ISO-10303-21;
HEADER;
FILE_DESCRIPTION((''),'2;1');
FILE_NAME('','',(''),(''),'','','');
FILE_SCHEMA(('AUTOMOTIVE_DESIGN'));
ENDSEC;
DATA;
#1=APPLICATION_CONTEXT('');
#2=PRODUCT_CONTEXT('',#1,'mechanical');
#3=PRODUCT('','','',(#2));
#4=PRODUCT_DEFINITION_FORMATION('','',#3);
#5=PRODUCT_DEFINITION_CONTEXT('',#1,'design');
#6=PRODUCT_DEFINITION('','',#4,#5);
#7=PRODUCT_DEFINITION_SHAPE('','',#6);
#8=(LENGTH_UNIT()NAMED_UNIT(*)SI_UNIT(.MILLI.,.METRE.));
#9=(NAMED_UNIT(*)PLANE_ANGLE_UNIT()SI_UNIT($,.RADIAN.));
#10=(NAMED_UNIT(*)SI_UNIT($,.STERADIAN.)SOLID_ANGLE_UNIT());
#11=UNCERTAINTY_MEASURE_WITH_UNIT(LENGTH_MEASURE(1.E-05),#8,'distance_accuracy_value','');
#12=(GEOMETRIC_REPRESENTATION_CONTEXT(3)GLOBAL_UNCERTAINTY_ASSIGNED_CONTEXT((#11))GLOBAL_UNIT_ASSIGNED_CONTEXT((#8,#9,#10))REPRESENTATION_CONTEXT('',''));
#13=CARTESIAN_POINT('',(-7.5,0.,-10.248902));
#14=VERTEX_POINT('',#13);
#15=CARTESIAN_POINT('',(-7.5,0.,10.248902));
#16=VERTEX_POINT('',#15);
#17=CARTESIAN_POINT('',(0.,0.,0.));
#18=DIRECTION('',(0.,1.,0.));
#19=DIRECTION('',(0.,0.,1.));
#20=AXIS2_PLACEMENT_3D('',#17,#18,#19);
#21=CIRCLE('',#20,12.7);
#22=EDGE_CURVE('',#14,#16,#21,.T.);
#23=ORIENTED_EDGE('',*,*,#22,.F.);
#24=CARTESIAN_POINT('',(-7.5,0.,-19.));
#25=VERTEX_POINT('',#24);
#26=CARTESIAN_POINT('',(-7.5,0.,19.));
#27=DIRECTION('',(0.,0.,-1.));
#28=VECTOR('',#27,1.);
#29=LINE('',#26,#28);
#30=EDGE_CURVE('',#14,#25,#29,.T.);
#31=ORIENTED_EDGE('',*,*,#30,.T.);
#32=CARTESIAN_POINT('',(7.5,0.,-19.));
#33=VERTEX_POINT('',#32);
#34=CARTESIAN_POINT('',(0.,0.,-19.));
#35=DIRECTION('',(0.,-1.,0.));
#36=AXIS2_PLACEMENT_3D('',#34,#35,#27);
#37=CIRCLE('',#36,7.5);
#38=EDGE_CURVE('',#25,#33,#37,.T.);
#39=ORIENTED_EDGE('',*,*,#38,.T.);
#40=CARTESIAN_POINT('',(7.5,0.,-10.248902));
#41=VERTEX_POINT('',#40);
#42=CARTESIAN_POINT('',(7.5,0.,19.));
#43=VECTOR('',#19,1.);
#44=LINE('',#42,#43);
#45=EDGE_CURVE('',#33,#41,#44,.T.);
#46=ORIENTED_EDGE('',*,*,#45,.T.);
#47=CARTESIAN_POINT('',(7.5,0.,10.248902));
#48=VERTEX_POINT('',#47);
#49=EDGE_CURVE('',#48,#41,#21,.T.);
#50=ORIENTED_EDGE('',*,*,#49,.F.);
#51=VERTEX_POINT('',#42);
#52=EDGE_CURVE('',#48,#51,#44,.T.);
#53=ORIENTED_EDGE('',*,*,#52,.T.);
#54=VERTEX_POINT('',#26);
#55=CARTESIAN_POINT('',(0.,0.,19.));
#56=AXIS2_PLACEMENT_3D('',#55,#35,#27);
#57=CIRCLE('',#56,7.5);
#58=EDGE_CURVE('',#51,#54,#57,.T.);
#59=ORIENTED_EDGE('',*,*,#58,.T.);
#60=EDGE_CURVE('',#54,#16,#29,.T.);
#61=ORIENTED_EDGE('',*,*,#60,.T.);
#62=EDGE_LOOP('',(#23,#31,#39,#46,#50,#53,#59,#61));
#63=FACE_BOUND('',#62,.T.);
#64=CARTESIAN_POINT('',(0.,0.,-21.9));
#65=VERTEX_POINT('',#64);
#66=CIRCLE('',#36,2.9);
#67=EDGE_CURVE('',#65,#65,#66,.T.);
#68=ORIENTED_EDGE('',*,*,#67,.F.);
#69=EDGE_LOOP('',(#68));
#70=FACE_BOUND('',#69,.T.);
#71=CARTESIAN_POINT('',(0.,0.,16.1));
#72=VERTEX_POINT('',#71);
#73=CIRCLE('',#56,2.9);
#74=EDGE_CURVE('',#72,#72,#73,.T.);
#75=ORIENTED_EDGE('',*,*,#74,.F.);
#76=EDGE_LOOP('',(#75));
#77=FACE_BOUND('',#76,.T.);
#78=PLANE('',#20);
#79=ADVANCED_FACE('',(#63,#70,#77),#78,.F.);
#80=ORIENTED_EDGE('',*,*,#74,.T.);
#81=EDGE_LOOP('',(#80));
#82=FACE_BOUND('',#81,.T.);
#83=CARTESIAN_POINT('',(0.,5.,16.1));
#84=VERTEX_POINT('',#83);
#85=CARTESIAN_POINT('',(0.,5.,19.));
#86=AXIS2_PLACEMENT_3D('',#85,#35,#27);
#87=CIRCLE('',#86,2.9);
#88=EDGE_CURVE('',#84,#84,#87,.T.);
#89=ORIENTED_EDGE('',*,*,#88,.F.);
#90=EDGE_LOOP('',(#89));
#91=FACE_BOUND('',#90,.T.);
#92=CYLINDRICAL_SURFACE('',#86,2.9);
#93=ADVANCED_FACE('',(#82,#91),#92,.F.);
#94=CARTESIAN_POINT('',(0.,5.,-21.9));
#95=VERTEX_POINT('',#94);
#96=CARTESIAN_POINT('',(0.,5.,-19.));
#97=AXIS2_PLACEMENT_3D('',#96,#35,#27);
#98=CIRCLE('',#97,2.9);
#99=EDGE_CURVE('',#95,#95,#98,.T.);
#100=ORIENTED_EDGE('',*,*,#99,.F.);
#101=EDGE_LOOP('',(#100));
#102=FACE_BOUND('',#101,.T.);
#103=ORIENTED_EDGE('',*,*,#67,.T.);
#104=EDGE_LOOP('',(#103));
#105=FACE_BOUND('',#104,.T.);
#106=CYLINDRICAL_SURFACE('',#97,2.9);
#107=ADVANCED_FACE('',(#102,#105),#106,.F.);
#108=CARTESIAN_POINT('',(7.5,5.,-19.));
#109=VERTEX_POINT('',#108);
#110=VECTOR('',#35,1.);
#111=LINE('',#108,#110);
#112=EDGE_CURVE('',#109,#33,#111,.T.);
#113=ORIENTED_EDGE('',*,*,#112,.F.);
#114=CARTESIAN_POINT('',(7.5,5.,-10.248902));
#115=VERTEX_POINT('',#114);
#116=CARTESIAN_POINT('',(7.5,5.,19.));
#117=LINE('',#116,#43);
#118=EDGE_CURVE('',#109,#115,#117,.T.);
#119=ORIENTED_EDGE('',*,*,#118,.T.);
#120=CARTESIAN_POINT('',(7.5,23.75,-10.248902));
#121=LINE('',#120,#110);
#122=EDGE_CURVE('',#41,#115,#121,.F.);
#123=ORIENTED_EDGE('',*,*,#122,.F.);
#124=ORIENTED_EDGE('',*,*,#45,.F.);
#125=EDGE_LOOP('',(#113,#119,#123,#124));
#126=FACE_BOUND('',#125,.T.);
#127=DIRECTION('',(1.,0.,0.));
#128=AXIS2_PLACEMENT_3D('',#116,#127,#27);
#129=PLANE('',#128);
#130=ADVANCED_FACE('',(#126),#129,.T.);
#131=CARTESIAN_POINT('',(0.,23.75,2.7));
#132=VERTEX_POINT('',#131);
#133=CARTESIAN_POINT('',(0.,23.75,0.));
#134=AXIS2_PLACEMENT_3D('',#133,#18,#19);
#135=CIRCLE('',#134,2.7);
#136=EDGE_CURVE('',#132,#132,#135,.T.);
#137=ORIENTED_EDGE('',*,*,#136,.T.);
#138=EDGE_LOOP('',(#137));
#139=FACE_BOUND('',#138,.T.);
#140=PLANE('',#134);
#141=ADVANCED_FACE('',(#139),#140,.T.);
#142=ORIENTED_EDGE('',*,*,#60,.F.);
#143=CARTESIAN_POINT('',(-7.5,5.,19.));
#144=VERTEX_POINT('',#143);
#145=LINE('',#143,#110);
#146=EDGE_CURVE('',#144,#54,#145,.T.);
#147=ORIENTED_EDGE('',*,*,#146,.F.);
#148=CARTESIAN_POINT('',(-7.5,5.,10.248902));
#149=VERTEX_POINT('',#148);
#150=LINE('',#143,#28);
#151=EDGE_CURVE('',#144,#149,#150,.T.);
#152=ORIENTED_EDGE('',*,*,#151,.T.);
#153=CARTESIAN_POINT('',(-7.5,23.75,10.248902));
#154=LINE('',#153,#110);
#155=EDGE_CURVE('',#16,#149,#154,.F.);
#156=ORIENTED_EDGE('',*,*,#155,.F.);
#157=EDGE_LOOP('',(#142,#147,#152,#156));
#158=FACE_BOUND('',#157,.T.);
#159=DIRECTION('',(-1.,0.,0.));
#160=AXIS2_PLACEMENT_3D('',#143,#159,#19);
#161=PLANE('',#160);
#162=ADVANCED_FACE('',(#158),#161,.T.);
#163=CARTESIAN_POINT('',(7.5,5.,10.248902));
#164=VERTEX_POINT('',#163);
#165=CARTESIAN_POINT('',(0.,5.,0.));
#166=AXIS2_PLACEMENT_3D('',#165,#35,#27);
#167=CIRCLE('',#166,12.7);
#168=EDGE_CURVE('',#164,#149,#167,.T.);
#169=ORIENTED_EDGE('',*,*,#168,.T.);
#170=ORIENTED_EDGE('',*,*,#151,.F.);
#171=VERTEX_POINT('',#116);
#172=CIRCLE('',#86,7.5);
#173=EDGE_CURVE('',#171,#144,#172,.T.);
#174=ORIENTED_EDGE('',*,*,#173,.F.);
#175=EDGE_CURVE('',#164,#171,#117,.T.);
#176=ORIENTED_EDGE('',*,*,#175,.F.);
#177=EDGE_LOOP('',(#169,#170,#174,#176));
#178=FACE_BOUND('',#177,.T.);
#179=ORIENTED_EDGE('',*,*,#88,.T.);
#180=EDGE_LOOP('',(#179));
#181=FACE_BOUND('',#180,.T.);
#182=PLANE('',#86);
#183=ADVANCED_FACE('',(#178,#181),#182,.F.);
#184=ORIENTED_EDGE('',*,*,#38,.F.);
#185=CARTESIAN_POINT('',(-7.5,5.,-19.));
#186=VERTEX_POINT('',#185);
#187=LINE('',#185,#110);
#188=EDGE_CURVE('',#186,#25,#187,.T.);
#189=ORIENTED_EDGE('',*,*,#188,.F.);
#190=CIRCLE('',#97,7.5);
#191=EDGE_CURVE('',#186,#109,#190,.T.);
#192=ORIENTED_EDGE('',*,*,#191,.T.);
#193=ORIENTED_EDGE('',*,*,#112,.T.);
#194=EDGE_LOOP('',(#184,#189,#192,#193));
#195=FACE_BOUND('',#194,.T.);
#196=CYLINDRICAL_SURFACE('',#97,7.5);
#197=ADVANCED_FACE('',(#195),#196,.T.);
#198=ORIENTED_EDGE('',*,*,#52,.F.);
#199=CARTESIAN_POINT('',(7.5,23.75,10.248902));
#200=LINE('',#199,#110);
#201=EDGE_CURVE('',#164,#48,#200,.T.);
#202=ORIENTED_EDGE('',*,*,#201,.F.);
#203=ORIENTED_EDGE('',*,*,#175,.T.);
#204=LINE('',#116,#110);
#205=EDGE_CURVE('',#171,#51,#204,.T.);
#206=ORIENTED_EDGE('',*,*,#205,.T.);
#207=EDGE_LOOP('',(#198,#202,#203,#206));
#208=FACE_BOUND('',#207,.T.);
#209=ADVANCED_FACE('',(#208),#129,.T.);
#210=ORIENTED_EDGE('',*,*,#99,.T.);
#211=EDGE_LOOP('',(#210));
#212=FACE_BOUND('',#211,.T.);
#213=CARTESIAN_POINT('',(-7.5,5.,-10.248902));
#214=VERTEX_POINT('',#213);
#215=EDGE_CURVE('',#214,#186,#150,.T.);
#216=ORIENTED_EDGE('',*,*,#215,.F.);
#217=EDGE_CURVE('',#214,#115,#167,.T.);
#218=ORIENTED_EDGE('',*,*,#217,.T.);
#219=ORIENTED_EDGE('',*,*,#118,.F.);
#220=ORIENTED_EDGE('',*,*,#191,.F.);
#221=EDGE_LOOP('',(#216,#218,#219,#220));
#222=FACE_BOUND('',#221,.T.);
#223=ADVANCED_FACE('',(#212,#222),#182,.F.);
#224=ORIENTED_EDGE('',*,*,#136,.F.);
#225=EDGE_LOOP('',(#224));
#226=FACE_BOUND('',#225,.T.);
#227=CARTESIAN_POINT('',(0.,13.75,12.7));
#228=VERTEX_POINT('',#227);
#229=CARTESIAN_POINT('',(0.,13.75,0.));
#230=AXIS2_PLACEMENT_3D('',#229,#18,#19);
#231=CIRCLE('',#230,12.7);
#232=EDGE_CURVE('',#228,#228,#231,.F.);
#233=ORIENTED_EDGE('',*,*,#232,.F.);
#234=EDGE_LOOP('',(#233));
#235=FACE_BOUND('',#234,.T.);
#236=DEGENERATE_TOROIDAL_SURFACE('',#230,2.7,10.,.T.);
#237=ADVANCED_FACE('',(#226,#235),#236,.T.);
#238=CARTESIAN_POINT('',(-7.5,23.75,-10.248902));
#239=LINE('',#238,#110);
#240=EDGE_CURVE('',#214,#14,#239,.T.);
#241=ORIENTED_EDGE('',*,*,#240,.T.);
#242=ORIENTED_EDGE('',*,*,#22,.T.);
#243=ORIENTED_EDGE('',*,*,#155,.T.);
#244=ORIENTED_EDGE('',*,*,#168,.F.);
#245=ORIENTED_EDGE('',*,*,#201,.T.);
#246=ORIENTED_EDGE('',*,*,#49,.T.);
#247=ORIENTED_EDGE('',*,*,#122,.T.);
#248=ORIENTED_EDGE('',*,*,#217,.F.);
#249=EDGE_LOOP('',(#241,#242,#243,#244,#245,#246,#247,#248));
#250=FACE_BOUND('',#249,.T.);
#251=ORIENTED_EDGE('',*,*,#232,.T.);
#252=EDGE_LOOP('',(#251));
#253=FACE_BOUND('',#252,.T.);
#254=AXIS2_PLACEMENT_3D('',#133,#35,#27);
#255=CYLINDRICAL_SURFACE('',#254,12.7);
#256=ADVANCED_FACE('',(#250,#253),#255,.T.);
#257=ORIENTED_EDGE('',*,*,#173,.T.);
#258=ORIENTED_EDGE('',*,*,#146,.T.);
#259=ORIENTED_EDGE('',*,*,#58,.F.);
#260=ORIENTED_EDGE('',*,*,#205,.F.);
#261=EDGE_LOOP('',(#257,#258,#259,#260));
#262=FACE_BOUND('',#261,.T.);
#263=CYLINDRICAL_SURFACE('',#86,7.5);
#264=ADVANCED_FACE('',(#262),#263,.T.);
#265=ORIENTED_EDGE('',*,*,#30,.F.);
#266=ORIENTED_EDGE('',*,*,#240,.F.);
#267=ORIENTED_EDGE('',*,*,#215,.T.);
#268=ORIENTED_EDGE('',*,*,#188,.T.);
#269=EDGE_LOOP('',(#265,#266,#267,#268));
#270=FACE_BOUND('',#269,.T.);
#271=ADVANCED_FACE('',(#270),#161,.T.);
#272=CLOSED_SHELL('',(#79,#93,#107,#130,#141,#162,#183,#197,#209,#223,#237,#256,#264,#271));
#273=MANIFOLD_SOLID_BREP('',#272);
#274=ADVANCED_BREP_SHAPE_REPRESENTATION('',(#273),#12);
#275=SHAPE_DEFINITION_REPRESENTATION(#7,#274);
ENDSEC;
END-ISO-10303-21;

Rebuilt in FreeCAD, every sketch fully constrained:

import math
import FreeCAD as App
import Part
import Sketcher
Q = App.Units.Quantity


def edges_at(feature, points):
    """Names of the edges that pass closest to the given points."""
    edges = feature.Shape.Edges
    near = lambda p: min(range(len(edges)), key=lambda i: edges[i].distToShape(Part.Vertex(*p))[0])
    return sorted({f"Edge{near(p) + 1}" for p in points})

doc = App.newDocument("Part")
body = doc.addObject("PartDesign::Body", "Body")

sketch1 = body.newObject("Sketcher::SketchObject", "Sketch")
sketch1.AttachmentSupport = (doc.getObject("XZ_Plane"), [""])
sketch1.MapMode = "FlatFace"
sketch1.addGeometry(Part.Circle(App.Vector(0, 0, 0), App.Vector(0, 0, 1), 13), False)
sketch1.addConstraint(Sketcher.Constraint("Coincident", 0, 3, -1, 1))
sketch1.addConstraint(Sketcher.Constraint("Diameter", 0, Q("25.4 mm")))
pad1 = body.newObject("PartDesign::Pad", "Pad")
pad1.Profile = sketch1
pad1.Length = 23.75
pad1.Reversed = True
doc.recompute()

fillet = body.newObject("PartDesign::Fillet", "Fillet")
fillet.Base = (pad1, edges_at(pad1, [(0, 23.75, -12.7)]))
fillet.Radius = 10

sketch2 = body.newObject("Sketcher::SketchObject", "Sketch001")
sketch2.AttachmentSupport = (doc.getObject("XZ_Plane"), [""])
sketch2.MapMode = "FlatFace"
sketch2.addGeometry(Part.LineSegment(App.Vector(7.5, -19, 0), App.Vector(7.5, 19, 0)), False)
sketch2.addGeometry(Part.ArcOfCircle(Part.Circle(App.Vector(0, 19, 0), App.Vector(0, 0, 1), 7.5), math.radians(0), math.radians(180)), False)
sketch2.addGeometry(Part.LineSegment(App.Vector(-7.5, 19, 0), App.Vector(-7.5, -19, 0)), False)
sketch2.addGeometry(Part.ArcOfCircle(Part.Circle(App.Vector(0, -19, 0), App.Vector(0, 0, 1), 7.5), math.radians(180), math.radians(360)), False)
sketch2.addGeometry(Part.Circle(App.Vector(0, -19, 0), App.Vector(0, 0, 1), 2.9), False)
sketch2.addGeometry(Part.Circle(App.Vector(0, 19, 0), App.Vector(0, 0, 1), 2.9), False)
sketch2.addConstraint(Sketcher.Constraint("Tangent", 0, 2, 1, 1))
sketch2.addConstraint(Sketcher.Constraint("Tangent", 1, 2, 2, 1))
sketch2.addConstraint(Sketcher.Constraint("Tangent", 2, 2, 3, 1))
sketch2.addConstraint(Sketcher.Constraint("Tangent", 3, 2, 0, 1))
sketch2.addConstraint(Sketcher.Constraint("Vertical", 0))
sketch2.addConstraint(Sketcher.Constraint("Vertical", 2))
sketch2.addConstraint(Sketcher.Constraint("Coincident", 4, 3, 3, 3))
sketch2.addConstraint(Sketcher.Constraint("Coincident", 5, 3, 1, 3))
sketch2.addConstraint(Sketcher.Constraint("Equal", 4, 5))
sketch2.addConstraint(Sketcher.Constraint("Symmetric", 1, 3, 3, 3, -1, 1))
sketch2.addConstraint(Sketcher.Constraint("Diameter", 4, Q("5.8 mm")))
sketch2.addConstraint(Sketcher.Constraint("Radius", 1, Q("7.5 mm")))
sketch2.addConstraint(Sketcher.Constraint("DistanceY", 0, 1, 0, 2, Q("38 mm")))
pad2 = body.newObject("PartDesign::Pad", "Pad001")
pad2.Profile = sketch2
pad2.Length = 5
pad2.Reversed = True

doc.recompute()
